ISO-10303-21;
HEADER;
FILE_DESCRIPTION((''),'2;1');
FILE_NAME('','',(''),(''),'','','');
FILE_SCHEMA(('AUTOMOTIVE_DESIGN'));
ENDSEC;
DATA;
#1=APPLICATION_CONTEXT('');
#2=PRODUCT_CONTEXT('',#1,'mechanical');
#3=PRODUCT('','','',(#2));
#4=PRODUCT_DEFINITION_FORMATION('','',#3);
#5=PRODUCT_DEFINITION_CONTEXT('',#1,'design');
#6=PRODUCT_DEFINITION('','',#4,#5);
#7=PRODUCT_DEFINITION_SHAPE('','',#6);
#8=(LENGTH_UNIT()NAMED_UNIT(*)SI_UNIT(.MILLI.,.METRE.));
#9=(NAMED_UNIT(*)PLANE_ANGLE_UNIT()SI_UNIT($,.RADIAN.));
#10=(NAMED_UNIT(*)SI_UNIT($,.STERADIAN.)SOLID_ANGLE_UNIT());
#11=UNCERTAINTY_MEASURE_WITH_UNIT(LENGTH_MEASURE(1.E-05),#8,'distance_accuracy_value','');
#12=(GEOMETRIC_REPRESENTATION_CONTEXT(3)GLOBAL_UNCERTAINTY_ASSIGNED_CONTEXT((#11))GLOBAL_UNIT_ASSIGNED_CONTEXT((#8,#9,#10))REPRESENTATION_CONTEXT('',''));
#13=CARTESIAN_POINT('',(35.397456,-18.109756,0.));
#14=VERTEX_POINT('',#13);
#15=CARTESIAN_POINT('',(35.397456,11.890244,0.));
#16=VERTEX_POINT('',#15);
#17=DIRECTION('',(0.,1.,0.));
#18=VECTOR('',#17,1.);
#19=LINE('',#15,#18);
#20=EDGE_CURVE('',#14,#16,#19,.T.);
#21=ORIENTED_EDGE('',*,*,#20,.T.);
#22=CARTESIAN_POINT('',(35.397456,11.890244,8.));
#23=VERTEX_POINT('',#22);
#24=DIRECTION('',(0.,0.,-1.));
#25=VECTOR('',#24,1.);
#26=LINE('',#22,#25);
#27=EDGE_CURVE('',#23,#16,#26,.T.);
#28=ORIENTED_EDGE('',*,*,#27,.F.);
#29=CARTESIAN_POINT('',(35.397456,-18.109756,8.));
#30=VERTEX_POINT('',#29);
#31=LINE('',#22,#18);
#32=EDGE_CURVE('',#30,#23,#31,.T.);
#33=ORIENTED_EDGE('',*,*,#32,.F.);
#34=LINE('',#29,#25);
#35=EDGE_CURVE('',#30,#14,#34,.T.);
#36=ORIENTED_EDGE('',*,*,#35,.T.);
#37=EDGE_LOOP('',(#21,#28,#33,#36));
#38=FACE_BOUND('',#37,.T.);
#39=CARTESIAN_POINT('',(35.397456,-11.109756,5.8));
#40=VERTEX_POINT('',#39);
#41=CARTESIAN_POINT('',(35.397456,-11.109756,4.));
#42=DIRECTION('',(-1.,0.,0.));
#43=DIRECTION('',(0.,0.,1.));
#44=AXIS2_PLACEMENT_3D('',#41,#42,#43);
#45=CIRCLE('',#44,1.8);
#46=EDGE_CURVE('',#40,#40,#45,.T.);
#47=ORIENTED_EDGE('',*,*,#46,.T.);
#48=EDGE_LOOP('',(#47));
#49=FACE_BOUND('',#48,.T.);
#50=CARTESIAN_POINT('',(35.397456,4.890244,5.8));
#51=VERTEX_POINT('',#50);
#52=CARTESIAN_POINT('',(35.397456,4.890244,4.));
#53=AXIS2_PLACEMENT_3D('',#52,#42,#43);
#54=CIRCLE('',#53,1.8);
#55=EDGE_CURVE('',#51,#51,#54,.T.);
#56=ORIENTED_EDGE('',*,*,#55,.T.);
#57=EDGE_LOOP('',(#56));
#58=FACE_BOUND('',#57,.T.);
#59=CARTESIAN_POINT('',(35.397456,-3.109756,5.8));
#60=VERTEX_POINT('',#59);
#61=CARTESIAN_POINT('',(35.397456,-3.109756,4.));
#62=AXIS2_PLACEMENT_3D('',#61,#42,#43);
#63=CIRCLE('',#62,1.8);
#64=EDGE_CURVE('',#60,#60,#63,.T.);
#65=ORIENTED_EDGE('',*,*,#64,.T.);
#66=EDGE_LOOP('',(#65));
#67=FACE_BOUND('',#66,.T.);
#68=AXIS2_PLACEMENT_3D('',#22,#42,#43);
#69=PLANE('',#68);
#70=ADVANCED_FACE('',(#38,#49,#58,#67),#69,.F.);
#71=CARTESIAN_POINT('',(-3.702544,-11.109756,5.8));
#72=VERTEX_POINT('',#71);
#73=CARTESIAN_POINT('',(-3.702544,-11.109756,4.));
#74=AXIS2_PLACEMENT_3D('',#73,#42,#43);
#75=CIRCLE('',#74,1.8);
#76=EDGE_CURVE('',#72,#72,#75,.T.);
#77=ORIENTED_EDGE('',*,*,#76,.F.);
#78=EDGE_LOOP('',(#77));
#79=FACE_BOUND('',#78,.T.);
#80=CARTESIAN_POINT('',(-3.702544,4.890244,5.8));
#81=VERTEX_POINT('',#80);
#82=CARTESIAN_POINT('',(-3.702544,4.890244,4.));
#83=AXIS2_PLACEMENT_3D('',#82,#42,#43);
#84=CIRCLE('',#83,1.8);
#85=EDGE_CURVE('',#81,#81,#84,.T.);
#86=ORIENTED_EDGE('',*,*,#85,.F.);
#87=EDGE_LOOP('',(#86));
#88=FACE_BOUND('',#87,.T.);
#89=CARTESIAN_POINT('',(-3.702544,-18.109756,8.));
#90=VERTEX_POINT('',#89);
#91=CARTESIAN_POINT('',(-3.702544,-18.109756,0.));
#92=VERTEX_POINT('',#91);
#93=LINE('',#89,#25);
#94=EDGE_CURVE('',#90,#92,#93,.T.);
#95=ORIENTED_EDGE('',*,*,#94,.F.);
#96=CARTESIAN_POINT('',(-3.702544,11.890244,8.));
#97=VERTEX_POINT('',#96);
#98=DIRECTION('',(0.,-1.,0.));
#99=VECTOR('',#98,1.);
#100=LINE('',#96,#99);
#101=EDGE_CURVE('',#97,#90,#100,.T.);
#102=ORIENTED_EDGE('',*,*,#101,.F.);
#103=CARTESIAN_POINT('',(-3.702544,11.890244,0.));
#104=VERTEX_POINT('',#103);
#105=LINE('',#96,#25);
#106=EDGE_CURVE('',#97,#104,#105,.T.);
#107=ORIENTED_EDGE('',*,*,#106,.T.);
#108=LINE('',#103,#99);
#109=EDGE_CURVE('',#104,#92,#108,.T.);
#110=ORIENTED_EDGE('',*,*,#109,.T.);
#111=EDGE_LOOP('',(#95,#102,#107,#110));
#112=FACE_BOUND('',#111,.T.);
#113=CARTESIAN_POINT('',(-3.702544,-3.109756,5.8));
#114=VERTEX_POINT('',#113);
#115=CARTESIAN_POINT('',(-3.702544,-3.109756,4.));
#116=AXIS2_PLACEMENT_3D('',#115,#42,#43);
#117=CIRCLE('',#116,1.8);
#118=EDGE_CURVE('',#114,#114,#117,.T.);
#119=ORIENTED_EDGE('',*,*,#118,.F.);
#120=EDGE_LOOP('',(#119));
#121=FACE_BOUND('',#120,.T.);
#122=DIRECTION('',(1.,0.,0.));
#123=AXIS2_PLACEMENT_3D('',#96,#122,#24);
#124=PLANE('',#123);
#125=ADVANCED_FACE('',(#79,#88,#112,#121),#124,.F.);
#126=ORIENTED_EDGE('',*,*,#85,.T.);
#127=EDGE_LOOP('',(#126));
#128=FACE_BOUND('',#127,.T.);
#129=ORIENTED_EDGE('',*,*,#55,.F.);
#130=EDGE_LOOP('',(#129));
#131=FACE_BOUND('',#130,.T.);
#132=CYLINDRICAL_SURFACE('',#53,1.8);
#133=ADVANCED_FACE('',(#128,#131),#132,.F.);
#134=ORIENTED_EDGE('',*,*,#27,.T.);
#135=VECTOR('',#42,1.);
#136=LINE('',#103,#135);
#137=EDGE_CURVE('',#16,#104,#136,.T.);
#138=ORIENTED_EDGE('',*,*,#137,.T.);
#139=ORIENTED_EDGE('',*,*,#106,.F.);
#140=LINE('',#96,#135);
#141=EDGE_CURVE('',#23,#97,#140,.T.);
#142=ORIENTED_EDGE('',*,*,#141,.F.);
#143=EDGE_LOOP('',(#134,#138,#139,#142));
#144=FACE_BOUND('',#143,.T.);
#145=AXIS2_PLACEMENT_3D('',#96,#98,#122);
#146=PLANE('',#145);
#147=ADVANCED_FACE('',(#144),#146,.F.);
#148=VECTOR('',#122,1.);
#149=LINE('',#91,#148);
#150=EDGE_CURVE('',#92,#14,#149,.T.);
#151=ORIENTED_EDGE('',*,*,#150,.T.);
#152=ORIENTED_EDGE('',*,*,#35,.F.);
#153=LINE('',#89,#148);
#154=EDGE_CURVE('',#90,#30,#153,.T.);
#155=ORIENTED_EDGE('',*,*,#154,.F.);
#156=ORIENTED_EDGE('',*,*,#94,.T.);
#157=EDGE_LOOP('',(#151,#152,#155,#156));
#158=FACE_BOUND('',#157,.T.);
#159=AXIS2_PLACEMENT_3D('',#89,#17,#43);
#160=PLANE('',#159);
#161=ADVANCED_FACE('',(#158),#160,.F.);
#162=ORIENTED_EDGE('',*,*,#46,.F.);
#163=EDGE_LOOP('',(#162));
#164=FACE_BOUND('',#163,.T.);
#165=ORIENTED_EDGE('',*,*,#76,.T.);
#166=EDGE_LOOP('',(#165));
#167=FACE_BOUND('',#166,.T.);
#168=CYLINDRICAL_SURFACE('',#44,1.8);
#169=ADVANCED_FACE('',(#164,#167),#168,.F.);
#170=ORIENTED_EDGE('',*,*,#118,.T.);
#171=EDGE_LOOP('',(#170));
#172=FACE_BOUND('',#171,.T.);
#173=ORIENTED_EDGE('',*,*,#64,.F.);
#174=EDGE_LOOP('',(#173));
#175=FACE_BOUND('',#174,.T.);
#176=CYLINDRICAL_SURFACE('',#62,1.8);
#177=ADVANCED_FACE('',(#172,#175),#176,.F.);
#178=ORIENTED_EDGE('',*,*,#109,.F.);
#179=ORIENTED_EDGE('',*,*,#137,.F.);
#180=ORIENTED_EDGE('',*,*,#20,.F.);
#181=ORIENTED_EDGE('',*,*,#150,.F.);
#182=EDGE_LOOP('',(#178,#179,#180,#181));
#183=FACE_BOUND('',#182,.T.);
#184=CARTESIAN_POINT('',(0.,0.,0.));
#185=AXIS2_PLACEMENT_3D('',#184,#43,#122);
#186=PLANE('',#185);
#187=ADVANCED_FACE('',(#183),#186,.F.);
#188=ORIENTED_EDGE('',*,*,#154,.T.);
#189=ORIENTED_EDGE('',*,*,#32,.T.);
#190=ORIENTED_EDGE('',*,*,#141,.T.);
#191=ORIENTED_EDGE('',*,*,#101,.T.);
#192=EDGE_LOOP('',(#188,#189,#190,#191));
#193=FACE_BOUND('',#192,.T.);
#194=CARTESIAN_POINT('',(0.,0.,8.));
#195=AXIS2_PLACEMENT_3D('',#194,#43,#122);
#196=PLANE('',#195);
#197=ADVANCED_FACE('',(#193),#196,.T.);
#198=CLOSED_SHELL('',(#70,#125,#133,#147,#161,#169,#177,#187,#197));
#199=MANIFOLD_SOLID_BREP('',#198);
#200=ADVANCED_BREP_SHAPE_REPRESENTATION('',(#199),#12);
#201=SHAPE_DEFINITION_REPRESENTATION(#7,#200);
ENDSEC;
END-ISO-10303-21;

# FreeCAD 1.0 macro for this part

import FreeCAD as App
import Part
import Sketcher
Q = App.Units.Quantity


def add_polygon(sketch, points):
    """Adds a closed chain of lines whose ends are joined by coincident constraints."""
    first, n = sketch.GeometryCount, len(points)
    for a, b in zip(points, points[1:] + points[:1]):
        sketch.addGeometry(Part.LineSegment(App.Vector(*a, 0), App.Vector(*b, 0)), False)
    for i in range(n):
        sketch.addConstraint(Sketcher.Constraint("Coincident", first + i, 2, first + (i + 1) % n, 1))

doc = App.newDocument("Part")
body = doc.addObject("PartDesign::Body", "Body")

# Sketch on XY plane
sketch1 = body.newObject("Sketcher::SketchObject", "Sketch")
sketch1.AttachmentSupport = (doc.getObject("XY_Plane"), [""])
sketch1.MapMode = "FlatFace"
add_polygon(sketch1, [(-3.702544, 11.890244), (-3.702544, -18.109756), (35.397456, -18.109756), (35.397456, 11.890244)])  # lines 0-3
sketch1.addConstraint(Sketcher.Constraint("Vertical", 0))
sketch1.addConstraint(Sketcher.Constraint("Horizontal", 1))
sketch1.addConstraint(Sketcher.Constraint("Vertical", 2))
sketch1.addConstraint(Sketcher.Constraint("Horizontal", 3))
sketch1.addConstraint(Sketcher.Constraint("DistanceY", 0, 2, 0, 1, Q("30 mm")))
sketch1.addConstraint(Sketcher.Constraint("DistanceX", 1, 1, 1, 2, Q("39.1 mm")))
sketch1.addConstraint(Sketcher.Constraint("DistanceX", 0, 2, -1, 1, Q("3.702544 mm")))
sketch1.addConstraint(Sketcher.Constraint("DistanceY", 0, 2, -1, 1, Q("18.109756 mm")))
pad1 = body.newObject("PartDesign::Pad", "Pad")
pad1.Profile = sketch1
pad1.Length = 8

# Sketch on YZ plane
sketch2 = body.newObject("Sketcher::SketchObject", "Sketch001")
sketch2.AttachmentSupport = (doc.getObject("YZ_Plane"), [""])
sketch2.MapMode = "FlatFace"
sketch2.AttachmentOffset = App.Placement(App.Vector(0, 0, -3.702544), App.Rotation())
sketch2.addGeometry(Part.Circle(App.Vector(4.890244, 4, 0), App.Vector(0, 0, 1), 1.8), False)
sketch2.addGeometry(Part.Circle(App.Vector(-3.109756, 4, 0), App.Vector(0, 0, 1), 1.8), False)
sketch2.addGeometry(Part.Circle(App.Vector(-11.109756, 4, 0), App.Vector(0, 0, 1), 1.8), False)
sketch2.addConstraint(Sketcher.Constraint("Equal", 0, 1))
sketch2.addConstraint(Sketcher.Constraint("Equal", 1, 2))
sketch2.addConstraint(Sketcher.Constraint("Horizontal", 0, 3, 1, 3))
sketch2.addConstraint(Sketcher.Constraint("Horizontal", 1, 3, 2, 3))
sketch2.addConstraint(Sketcher.Constraint("Diameter", 0, Q("3.6 mm")))
sketch2.addConstraint(Sketcher.Constraint("DistanceY", -1, 1, 0, 3, Q("4 mm")))
sketch2.addConstraint(Sketcher.Constraint("DistanceX", 1, 3, 0, 3, Q("8 mm")))
sketch2.addConstraint(Sketcher.Constraint("DistanceX", 2, 3, 1, 3, Q("8 mm")))
sketch2.addConstraint(Sketcher.Constraint("DistanceX", -1, 1, 0, 3, Q("4.890244 mm")))
pocket1 = body.newObject("PartDesign::Pocket", "Pocket")
pocket1.Profile = sketch2
pocket1.Type = "ThroughAll"
pocket1.Reversed = True

doc.recompute()
